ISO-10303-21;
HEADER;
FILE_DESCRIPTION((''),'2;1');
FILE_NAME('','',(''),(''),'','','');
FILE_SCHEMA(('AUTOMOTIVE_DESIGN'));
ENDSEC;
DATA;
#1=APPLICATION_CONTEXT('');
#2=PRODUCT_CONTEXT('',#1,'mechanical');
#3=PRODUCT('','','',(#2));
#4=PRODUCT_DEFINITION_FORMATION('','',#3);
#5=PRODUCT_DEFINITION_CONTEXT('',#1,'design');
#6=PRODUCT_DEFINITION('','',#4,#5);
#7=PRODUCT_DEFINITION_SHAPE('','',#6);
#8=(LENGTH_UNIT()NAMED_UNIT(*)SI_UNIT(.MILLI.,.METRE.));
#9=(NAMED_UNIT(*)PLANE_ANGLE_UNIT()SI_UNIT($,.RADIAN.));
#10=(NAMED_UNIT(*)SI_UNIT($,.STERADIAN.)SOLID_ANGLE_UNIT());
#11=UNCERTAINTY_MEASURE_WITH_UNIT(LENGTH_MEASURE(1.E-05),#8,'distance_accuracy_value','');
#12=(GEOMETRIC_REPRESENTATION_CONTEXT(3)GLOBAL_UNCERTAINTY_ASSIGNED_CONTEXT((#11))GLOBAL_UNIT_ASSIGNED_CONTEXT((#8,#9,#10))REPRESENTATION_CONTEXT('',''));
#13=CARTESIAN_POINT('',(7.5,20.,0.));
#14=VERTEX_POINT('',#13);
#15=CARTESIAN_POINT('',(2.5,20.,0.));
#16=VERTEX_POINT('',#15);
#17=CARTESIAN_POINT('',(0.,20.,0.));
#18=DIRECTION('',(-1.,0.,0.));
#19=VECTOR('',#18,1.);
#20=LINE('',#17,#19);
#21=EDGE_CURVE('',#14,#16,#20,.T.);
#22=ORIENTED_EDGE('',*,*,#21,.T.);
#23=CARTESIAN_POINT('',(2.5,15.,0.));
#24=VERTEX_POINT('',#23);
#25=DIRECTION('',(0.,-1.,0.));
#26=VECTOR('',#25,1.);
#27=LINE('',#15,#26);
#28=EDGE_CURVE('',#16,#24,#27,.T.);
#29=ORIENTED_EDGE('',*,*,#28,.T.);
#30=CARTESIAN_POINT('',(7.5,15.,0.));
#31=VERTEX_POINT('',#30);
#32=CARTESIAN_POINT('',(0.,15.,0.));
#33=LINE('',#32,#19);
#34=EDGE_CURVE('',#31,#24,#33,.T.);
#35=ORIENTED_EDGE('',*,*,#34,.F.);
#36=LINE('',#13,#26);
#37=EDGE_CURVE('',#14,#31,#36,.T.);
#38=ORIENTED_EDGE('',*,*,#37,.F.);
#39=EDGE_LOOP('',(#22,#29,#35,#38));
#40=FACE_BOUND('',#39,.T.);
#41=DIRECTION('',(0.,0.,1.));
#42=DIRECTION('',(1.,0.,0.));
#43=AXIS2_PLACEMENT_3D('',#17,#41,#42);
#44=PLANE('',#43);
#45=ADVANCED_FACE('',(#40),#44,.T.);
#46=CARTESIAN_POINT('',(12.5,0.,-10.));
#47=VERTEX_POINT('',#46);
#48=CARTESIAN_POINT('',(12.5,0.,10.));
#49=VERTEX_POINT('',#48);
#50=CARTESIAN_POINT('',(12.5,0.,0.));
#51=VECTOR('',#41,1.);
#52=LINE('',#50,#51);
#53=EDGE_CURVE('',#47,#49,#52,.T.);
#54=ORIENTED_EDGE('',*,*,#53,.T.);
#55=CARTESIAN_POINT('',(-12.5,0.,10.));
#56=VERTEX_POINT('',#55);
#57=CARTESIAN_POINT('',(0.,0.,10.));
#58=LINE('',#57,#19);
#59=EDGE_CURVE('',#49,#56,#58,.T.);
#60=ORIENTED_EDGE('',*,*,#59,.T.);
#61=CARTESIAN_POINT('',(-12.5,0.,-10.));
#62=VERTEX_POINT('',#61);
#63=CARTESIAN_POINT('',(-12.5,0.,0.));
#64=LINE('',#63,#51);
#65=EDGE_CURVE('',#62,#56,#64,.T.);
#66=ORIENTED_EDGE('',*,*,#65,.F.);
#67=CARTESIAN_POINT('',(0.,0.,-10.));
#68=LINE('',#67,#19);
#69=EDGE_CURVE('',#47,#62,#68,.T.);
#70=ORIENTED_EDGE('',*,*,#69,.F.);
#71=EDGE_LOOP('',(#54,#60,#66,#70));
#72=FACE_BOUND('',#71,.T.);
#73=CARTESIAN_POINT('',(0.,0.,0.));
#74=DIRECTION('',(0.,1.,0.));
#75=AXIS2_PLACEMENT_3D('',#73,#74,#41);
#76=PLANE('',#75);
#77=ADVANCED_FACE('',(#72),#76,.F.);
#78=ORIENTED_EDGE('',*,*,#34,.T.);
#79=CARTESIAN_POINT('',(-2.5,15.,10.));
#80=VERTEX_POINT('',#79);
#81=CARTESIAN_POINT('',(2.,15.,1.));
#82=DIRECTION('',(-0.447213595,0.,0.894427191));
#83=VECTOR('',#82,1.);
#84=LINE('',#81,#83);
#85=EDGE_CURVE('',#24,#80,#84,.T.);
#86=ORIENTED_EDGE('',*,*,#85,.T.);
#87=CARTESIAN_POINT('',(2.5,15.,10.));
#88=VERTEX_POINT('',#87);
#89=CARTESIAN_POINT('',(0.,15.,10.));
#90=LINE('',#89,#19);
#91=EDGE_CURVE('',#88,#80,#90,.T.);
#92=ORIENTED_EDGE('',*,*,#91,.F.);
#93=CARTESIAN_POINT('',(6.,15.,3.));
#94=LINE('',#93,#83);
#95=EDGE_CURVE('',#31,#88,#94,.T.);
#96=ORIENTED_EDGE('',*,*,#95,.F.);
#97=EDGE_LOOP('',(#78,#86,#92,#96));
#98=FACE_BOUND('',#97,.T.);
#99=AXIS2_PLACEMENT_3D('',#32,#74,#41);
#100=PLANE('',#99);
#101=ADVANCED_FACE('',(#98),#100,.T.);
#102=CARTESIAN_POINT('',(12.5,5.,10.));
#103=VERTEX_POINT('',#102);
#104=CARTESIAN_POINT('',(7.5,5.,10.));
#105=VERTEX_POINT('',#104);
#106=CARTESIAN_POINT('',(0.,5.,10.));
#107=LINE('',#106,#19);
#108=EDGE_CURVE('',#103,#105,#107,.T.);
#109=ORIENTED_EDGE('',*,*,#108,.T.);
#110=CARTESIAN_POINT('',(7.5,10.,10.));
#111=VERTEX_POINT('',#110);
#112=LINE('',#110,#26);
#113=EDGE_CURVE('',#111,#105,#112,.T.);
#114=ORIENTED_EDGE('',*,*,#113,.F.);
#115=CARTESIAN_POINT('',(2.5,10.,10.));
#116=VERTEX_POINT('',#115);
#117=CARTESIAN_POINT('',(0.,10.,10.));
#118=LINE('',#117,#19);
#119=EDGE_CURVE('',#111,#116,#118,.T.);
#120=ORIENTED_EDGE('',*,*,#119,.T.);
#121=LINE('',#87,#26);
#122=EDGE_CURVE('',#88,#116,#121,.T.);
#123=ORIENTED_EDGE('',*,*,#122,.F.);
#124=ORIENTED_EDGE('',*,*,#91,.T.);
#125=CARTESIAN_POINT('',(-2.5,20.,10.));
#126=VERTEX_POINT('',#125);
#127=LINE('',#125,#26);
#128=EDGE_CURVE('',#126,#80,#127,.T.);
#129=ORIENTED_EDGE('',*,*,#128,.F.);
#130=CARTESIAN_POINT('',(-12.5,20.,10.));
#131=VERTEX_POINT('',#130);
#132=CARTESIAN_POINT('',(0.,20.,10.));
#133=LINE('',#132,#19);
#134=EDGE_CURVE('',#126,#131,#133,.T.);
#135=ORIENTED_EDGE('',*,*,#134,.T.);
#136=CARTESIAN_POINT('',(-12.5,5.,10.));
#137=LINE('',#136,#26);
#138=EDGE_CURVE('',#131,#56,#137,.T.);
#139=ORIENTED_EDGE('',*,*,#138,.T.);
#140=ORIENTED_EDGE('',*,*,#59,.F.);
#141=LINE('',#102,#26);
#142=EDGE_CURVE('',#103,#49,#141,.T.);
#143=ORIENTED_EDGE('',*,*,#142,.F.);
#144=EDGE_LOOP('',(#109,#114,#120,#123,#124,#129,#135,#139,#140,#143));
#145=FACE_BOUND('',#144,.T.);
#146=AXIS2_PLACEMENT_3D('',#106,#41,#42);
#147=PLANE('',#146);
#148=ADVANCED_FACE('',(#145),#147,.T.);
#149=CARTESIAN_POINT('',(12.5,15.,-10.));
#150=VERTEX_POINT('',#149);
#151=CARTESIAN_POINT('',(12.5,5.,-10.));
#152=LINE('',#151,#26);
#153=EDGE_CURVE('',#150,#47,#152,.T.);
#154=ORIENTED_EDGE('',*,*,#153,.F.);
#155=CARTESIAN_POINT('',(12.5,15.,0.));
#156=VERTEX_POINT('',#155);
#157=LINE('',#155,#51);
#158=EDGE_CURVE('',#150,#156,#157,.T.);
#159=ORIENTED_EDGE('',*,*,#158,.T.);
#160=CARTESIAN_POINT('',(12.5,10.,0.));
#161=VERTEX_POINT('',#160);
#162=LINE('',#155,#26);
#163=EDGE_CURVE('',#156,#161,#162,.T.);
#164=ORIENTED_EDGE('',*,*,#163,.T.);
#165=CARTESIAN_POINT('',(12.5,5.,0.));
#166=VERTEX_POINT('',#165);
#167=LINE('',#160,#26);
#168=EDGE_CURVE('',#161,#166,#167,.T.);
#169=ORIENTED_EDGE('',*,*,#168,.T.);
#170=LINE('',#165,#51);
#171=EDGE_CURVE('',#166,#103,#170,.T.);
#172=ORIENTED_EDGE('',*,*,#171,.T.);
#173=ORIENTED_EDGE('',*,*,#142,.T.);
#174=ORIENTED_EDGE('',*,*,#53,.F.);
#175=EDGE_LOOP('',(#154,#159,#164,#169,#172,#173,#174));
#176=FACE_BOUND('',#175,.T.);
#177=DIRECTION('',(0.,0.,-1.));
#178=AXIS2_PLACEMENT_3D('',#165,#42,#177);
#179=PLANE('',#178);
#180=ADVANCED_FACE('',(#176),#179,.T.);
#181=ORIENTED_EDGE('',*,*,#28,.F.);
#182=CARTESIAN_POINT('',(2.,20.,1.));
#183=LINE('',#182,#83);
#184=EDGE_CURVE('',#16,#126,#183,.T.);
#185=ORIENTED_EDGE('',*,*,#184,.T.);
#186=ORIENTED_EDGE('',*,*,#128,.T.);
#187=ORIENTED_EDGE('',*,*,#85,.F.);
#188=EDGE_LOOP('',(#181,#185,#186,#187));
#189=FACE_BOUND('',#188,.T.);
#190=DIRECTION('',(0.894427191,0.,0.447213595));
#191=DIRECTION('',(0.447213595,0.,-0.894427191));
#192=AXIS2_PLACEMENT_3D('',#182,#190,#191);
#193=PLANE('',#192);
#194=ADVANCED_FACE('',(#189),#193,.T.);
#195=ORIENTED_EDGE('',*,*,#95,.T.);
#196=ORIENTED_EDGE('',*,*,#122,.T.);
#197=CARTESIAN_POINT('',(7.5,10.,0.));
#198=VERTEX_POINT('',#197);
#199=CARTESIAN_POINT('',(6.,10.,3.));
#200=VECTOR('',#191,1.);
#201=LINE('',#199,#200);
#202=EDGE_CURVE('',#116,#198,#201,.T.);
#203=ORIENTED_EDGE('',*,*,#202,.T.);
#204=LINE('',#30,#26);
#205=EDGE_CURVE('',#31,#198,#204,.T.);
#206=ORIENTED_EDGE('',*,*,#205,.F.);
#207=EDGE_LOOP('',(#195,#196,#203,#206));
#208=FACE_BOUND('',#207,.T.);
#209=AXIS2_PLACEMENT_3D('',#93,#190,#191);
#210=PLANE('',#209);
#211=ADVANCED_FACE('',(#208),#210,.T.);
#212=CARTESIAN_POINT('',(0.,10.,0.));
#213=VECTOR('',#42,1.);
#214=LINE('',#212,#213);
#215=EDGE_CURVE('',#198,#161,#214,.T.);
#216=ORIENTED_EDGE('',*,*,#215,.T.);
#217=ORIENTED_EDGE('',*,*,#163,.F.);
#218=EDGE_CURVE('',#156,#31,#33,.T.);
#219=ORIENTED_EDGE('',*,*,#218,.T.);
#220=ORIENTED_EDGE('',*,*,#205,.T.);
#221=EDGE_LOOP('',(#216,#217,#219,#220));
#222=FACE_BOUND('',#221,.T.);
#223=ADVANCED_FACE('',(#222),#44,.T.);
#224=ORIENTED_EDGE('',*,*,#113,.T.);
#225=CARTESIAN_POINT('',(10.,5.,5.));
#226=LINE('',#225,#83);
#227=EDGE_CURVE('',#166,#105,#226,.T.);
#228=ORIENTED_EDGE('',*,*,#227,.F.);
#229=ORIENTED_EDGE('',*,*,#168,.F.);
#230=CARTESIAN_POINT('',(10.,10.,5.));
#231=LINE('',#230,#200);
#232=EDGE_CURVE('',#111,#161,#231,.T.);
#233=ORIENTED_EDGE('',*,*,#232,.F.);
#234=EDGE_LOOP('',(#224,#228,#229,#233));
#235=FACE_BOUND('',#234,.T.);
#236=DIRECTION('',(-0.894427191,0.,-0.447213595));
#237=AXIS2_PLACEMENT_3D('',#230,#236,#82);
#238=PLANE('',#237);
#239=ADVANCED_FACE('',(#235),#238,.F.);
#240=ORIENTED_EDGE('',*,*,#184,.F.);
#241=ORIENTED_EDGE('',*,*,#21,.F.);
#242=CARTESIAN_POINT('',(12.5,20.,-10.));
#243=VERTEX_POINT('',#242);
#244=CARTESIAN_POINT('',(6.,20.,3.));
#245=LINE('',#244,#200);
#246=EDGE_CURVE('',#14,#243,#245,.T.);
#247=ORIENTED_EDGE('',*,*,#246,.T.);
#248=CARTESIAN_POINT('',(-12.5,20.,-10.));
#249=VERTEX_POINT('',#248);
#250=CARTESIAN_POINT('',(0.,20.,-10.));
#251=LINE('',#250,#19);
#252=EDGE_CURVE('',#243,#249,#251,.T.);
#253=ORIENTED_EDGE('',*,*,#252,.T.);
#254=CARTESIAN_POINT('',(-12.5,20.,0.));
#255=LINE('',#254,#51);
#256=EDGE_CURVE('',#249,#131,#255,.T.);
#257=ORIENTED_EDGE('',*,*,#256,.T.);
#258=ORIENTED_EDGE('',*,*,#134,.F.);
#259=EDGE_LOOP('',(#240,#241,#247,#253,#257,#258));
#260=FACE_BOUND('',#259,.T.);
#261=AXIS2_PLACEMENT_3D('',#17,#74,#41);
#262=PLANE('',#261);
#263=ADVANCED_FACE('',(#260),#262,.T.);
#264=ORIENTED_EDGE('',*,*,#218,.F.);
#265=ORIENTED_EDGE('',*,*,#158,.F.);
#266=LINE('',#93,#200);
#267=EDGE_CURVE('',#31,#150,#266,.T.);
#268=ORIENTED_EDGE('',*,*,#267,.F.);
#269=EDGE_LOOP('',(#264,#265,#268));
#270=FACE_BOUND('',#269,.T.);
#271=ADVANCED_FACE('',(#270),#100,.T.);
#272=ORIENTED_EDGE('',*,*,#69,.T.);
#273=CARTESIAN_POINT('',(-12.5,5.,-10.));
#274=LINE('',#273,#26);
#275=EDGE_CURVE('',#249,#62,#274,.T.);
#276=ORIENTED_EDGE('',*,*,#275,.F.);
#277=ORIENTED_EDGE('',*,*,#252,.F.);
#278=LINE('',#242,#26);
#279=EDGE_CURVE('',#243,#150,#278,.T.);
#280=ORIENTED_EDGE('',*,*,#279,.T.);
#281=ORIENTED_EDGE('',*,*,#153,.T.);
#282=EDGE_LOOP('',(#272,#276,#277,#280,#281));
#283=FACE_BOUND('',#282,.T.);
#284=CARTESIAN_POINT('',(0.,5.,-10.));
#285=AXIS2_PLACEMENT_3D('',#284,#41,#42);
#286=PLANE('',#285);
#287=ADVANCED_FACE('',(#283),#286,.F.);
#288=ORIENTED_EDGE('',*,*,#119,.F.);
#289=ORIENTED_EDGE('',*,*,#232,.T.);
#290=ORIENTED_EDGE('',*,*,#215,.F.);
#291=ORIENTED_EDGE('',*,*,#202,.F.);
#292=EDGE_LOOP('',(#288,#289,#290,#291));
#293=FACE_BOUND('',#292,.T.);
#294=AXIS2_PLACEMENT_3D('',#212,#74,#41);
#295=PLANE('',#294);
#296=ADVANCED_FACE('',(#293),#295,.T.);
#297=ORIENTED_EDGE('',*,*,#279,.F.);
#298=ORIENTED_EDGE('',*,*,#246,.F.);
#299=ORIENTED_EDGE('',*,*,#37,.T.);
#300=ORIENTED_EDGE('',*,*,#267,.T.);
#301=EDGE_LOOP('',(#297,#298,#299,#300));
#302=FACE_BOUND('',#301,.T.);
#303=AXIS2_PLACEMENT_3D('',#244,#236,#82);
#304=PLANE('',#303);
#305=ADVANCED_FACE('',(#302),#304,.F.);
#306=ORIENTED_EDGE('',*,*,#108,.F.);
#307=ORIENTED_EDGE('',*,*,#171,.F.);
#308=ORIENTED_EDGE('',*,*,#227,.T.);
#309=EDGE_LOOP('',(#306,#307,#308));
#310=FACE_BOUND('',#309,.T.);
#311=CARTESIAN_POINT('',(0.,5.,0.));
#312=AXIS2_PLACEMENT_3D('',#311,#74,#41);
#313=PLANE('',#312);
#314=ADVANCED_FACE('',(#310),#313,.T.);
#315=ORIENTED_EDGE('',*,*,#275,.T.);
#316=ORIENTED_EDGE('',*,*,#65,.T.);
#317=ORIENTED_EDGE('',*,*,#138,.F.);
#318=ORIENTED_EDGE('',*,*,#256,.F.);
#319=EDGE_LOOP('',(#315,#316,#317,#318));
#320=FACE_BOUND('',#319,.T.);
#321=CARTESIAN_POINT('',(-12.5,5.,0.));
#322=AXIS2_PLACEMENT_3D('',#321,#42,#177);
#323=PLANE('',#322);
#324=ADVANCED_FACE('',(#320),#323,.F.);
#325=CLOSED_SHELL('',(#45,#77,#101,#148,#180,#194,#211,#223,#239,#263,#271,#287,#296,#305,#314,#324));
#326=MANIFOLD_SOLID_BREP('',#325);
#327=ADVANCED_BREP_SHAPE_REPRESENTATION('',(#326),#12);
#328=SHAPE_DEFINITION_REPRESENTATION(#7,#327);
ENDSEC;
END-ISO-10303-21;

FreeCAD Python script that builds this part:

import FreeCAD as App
import Part
import Sketcher
from FreeCAD import Vector

doc = App.newDocument("Part")
body = doc.addObject("PartDesign::Body", "Body")

sketch1 = body.newObject("Sketcher::SketchObject", "Sketch")
sketch1.AttachmentSupport = (doc.getObject("XZ_Plane"), [""])
sketch1.MapMode = "FlatFace"
sketch1.addGeometry([
    Part.LineSegment(Vector(12, 10, 0), Vector(12, -10, 0)),
    Part.LineSegment(Vector(12, -10, 0), Vector(-12, -10, 0)),
    Part.LineSegment(Vector(-12, -10, 0), Vector(-12, 10, 0)),
    Part.LineSegment(Vector(-12, 10, 0), Vector(12, 10, 0)),
], False)
sketch1.addConstraint([
    Sketcher.Constraint("Coincident", 0, 2, 1, 1),
    Sketcher.Constraint("Coincident", 1, 2, 2, 1),
    Sketcher.Constraint("Coincident", 2, 2, 3, 1),
    Sketcher.Constraint("Coincident", 3, 2, 0, 1),
    Sketcher.Constraint("Vertical", 0),
    Sketcher.Constraint("Horizontal", 1),
    Sketcher.Constraint("Vertical", 2),
    Sketcher.Constraint("Horizontal", 3),
    Sketcher.Constraint("Symmetric", 0, 2, 2, 2, -1, 1),
    Sketcher.Constraint("DistanceX", 1, 2, 1, 1, 25.0),
    Sketcher.Constraint("DistanceY", 0, 2, 0, 1, 20.0),
])
pad1 = body.newObject("PartDesign::Pad", "Pad")
pad1.Profile = sketch1
pad1.Length = 5
pad1.Reversed = True

sketch2 = body.newObject("Sketcher::SketchObject", "Sketch001")
sketch2.AttachmentSupport = (doc.getObject("XZ_Plane"), [""])
sketch2.MapMode = "FlatFace"
sketch2.addGeometry([
    Part.LineSegment(Vector(8, 10, 0), Vector(12, 0, 0)),
    Part.LineSegment(Vector(12, 0, 0), Vector(12, -10, 0)),
    Part.LineSegment(Vector(12, -10, 0), Vector(-12, -10, 0)),
    Part.LineSegment(Vector(-12, -10, 0), Vector(-12, 10, 0)),
    Part.LineSegment(Vector(-12, 10, 0), Vector(8, 10, 0)),
], False)
sketch2.addConstraint([
    Sketcher.Constraint("Coincident", 0, 2, 1, 1),
    Sketcher.Constraint("Coincident", 1, 2, 2, 1),
    Sketcher.Constraint("Coincident", 2, 2, 3, 1),
    Sketcher.Constraint("Coincident", 3, 2, 4, 1),
    Sketcher.Constraint("Coincident", 4, 2, 0, 1),
    Sketcher.Constraint("Vertical", 1),
    Sketcher.Constraint("Horizontal", 2),
    Sketcher.Constraint("Vertical", 3),
    Sketcher.Constraint("Horizontal", 4),
    Sketcher.Constraint("Symmetric", 1, 2, 3, 2, -1, 1),
    Sketcher.Constraint("PointOnObject", 0, 2, -1),
    Sketcher.Constraint("Equal", 4, 3),
    Sketcher.Constraint("DistanceX", 2, 2, 2, 1, 25.0),
    Sketcher.Constraint("DistanceX", 4, 1, 4, 2, 20.0),
])
pad2 = body.newObject("PartDesign::Pad", "Pad001")
pad2.Profile = sketch2
pad2.Length = 10
pad2.Reversed = True

sketch3 = body.newObject("Sketcher::SketchObject", "Sketch002")
sketch3.AttachmentSupport = (doc.getObject("XZ_Plane"), [""])
sketch3.MapMode = "FlatFace"
sketch3.addGeometry([
    Part.LineSegment(Vector(-2, 10, 0), Vector(2, 0, 0)),
    Part.LineSegment(Vector(2, 0, 0), Vector(8, 0, 0)),
    Part.LineSegment(Vector(8, 0, 0), Vector(12, -10, 0)),
    Part.LineSegment(Vector(12, -10, 0), Vector(-12, -10, 0)),
    Part.LineSegment(Vector(-12, -10, 0), Vector(-12, 10, 0)),
    Part.LineSegment(Vector(-12, 10, 0), Vector(-2, 10, 0)),
], False)
sketch3.addConstraint([
    Sketcher.Constraint("Coincident", 0, 2, 1, 1),
    Sketcher.Constraint("Coincident", 1, 2, 2, 1),
    Sketcher.Constraint("Coincident", 2, 2, 3, 1),
    Sketcher.Constraint("Coincident", 3, 2, 4, 1),
    Sketcher.Constraint("Coincident", 4, 2, 5, 1),
    Sketcher.Constraint("Coincident", 5, 2, 0, 1),
    Sketcher.Constraint("Horizontal", 1),
    Sketcher.Constraint("Horizontal", 3),
    Sketcher.Constraint("Vertical", 4),
    Sketcher.Constraint("Horizontal", 5),
    Sketcher.Constraint("Symmetric", 2, 2, 4, 2, -1, 1),
    Sketcher.Constraint("PointOnObject", 0, 2, -1),
    Sketcher.Constraint("Parallel", 0, 2),
    Sketcher.Constraint("DistanceX", 1, 1, 1, 2, 5.0),
    Sketcher.Constraint("DistanceX", 3, 2, 3, 1, 25.0),
    Sketcher.Constraint("DistanceX", 5, 1, 5, 2, 10.0),
    Sketcher.Constraint("DistanceY", 4, 1, 4, 2, 20.0),
])
pad3 = body.newObject("PartDesign::Pad", "Pad002")
pad3.Profile = sketch3
pad3.Length = 20
pad3.Reversed = True

sketch4 = body.newObject("Sketcher::SketchObject", "Sketch003")
sketch4.AttachmentSupport = (doc.getObject("XZ_Plane"), [""])
sketch4.MapMode = "FlatFace"
sketch4.addGeometry([
    Part.LineSegment(Vector(12, -10, 0), Vector(8, 0, 0)),
    Part.LineSegment(Vector(8, 0, 0), Vector(12, 0, 0)),
    Part.LineSegment(Vector(12, 0, 0), Vector(12, -10, 0)),
    Part.LineSegment(Vector(8, 0, 0), Vector(2, 0, 0)),
    Part.LineSegment(Vector(2, 0, 0), Vector(-2, 10, 0)),
    Part.LineSegment(Vector(-2, 10, 0), Vector(2, 10, 0)),
    Part.LineSegment(Vector(2, 10, 0), Vector(8, 0, 0)),
], False)
sketch4.addConstraint([
    Sketcher.Constraint("Coincident", 0, 2, 1, 1),
    Sketcher.Constraint("Coincident", 1, 2, 2, 1),
    Sketcher.Constraint("Coincident", 2, 2, 0, 1),
    Sketcher.Constraint("Coincident", 3, 2, 4, 1),
    Sketcher.Constraint("Coincident", 4, 2, 5, 1),
    Sketcher.Constraint("Coincident", 5, 2, 6, 1),
    Sketcher.Constraint("Coincident", 6, 2, 3, 1),
    Sketcher.Constraint("Horizontal", 1),
    Sketcher.Constraint("Vertical", 2),
    Sketcher.Constraint("Horizontal", 3),
    Sketcher.Constraint("Horizontal", 5),
    Sketcher.Constraint("Coincident", 6, 2, 0, 2),
    Sketcher.Constraint("PointOnObject", 0, 2, -1),
    Sketcher.Constraint("Parallel", 0, 4),
    Sketcher.Constraint("Parallel", 4, 6),
    Sketcher.Constraint("Vertical", 3, 2, 5, 2),
    Sketcher.Constraint("Equal", 1, 3),
    Sketcher.Constraint("DistanceX", 1, 1, 1, 2, 5.0),
    Sketcher.Constraint("DistanceY", 2, 2, 2, 1, 10.0),
    Sketcher.Constraint("DistanceX", -1, 1, 0, 2, 7.5),
])
pad4 = body.newObject("PartDesign::Pad", "Pad003")
pad4.Profile = sketch4
pad4.Length = 15
pad4.Reversed = True

doc.recompute()
